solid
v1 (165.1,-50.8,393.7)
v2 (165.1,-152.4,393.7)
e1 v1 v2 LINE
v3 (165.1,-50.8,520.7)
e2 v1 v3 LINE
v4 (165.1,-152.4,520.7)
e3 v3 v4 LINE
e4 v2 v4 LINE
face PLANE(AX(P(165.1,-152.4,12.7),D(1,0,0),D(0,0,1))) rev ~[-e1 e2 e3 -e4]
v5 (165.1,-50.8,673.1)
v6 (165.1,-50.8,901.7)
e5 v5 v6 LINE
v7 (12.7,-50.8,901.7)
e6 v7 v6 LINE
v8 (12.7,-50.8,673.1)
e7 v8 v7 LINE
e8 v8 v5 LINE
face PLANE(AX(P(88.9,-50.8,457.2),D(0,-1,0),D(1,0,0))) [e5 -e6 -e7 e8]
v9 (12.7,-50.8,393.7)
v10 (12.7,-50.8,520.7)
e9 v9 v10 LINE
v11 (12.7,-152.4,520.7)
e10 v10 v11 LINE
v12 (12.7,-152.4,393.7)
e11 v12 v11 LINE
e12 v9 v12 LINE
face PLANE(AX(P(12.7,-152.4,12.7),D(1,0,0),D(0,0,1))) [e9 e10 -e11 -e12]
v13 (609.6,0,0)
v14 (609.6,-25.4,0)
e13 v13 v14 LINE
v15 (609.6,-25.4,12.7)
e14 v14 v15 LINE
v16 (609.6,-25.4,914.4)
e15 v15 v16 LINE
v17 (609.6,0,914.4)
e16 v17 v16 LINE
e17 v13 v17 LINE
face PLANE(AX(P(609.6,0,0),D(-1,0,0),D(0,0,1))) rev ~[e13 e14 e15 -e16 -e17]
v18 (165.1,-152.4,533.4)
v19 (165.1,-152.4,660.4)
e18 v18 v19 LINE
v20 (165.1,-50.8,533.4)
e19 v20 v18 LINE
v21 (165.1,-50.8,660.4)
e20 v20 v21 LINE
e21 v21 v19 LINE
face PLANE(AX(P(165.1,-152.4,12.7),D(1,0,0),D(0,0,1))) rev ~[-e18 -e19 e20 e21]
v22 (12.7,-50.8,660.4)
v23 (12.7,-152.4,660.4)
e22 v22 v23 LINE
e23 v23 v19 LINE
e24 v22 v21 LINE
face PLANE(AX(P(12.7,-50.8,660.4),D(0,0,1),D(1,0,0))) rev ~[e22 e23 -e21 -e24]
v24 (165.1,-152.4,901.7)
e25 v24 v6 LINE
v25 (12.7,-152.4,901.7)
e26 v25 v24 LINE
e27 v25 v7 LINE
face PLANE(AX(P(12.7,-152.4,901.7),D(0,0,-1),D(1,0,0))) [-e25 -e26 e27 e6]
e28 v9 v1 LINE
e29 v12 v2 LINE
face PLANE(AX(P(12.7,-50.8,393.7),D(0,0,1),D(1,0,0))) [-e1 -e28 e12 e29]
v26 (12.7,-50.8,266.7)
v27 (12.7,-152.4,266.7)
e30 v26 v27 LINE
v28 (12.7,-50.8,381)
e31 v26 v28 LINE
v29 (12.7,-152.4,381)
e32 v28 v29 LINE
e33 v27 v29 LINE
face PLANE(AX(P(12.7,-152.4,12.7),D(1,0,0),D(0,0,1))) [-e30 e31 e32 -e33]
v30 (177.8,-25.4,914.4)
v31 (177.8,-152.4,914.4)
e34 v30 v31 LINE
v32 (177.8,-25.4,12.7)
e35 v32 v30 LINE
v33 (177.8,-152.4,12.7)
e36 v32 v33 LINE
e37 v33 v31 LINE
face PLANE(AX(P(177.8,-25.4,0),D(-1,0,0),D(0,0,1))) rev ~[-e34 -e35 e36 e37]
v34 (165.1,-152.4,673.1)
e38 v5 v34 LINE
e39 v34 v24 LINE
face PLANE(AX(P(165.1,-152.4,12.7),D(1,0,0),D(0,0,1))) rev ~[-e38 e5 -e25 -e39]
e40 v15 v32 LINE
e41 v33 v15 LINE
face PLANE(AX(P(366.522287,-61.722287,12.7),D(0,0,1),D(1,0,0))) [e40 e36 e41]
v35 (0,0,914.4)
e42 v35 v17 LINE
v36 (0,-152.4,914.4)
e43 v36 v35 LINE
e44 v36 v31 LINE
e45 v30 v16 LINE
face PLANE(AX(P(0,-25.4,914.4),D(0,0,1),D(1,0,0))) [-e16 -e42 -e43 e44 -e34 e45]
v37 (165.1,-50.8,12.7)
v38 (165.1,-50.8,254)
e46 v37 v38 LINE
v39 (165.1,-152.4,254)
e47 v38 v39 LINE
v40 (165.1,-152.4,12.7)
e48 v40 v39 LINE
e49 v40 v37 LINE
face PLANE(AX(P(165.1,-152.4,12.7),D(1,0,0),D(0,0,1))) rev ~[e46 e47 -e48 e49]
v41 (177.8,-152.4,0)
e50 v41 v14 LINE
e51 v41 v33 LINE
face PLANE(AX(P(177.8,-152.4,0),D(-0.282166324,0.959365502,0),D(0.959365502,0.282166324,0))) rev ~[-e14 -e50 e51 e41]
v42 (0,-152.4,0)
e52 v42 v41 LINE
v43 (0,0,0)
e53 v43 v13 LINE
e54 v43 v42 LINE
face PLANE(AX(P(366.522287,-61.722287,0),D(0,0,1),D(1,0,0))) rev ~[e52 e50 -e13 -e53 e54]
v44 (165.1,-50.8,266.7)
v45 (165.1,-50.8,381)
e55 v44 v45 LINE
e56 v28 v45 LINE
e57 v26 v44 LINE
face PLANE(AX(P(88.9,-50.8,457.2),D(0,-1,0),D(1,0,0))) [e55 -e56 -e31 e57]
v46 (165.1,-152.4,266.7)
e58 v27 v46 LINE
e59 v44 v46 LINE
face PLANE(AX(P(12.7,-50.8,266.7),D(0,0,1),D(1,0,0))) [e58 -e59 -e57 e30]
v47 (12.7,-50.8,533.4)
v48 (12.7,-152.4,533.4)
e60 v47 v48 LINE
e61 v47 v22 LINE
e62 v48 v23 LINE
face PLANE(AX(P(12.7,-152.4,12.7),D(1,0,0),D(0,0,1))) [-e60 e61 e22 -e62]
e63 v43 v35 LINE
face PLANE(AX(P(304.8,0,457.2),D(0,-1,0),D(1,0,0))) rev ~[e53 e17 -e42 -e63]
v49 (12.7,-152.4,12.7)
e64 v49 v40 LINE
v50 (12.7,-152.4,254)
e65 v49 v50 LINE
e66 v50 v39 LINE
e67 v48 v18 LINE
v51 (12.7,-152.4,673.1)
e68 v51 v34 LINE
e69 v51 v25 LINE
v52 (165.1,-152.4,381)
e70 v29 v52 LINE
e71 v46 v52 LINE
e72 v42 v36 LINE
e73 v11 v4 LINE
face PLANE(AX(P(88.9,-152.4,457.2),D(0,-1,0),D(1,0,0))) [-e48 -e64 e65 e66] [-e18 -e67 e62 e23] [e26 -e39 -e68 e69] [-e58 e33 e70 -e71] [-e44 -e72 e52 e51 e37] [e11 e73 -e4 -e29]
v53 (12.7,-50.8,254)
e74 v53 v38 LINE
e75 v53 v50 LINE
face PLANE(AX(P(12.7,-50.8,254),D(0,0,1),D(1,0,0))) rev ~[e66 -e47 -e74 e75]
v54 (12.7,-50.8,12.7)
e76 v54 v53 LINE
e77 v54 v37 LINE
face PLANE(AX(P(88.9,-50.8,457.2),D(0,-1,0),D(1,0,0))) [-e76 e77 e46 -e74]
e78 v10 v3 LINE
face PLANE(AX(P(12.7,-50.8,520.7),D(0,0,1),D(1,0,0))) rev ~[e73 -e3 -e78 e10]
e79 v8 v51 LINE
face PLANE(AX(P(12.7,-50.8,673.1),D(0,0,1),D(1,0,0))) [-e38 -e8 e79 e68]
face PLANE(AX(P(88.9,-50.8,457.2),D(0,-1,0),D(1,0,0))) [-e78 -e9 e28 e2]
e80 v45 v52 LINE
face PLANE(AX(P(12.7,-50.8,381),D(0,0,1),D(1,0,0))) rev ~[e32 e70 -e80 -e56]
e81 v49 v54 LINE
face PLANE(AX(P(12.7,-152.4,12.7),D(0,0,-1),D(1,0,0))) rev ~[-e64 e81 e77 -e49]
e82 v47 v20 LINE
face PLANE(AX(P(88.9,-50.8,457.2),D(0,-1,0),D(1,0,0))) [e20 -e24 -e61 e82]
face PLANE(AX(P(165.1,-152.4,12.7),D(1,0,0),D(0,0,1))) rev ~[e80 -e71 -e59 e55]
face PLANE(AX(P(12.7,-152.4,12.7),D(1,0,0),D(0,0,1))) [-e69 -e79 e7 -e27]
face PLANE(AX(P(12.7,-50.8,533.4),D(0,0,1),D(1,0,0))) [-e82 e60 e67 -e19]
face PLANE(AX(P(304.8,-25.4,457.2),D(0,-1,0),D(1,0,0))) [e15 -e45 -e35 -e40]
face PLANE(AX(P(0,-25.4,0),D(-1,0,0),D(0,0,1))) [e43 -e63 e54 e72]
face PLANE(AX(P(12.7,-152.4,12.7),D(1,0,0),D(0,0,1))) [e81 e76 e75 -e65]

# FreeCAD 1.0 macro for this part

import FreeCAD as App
import Part
import Sketcher
Q = App.Units.Quantity


def add_polygon(sketch, points):
    """Adds a closed chain of lines whose ends are joined by coincident constraints."""
    first, n = sketch.GeometryCount, len(points)
    for a, b in zip(points, points[1:] + points[:1]):
        sketch.addGeometry(Part.LineSegment(App.Vector(*a, 0), App.Vector(*b, 0)), False)
    for i in range(n):
        sketch.addConstraint(Sketcher.Constraint("Coincident", first + i, 2, first + (i + 1) % n, 1))

doc = App.newDocument("Part")
body = doc.addObject("PartDesign::Body", "Body")

# Sketch on XZ plane
sketch1 = doc.addObject("Sketcher::SketchObject", "Sketch")
body.addObject(sketch1)
sketch1.AttachmentSupport = (doc.XZ_Plane, [""])
sketch1.MapMode = "FlatFace"
add_polygon(sketch1, [(0, 914), (0, 0), (610, 0), (610, 914)])  # lines 0-3
sketch1.addConstraint(Sketcher.Constraint("Vertical", 0))
sketch1.addConstraint(Sketcher.Constraint("Horizontal", 1))
sketch1.addConstraint(Sketcher.Constraint("Vertical", 2))
sketch1.addConstraint(Sketcher.Constraint("Horizontal", 3))
sketch1.addConstraint(Sketcher.Constraint("Coincident", 0, 2, -1, 1))
sketch1.addConstraint(Sketcher.Constraint("DistanceX", 1, 1, 1, 2, Q("24 in")))
sketch1.addConstraint(Sketcher.Constraint("DistanceY", 0, 2, 0, 1, Q("36 in")))
pad1 = doc.addObject("PartDesign::Pad", "Pad")
body.addObject(pad1)
pad1.Profile = sketch1
pad1.Length = Q("1 in")

# Sketch on XZ plane
sketch2 = doc.addObject("Sketcher::SketchObject", "Sketch001")
body.addObject(sketch2)
sketch2.AttachmentSupport = (doc.XZ_Plane, [""])
sketch2.MapMode = "FlatFace"
sketch2.AttachmentOffset = App.Placement(App.Vector(0, 0, 1 * 25.4), App.Rotation())
add_polygon(sketch2, [(0, 914), (0, 0), (178, 0), (178, 914)])  # lines 0-3
sketch2.addConstraint(Sketcher.Constraint("Vertical", 0))
sketch2.addConstraint(Sketcher.Constraint("Horizontal", 1))
sketch2.addConstraint(Sketcher.Constraint("Vertical", 2))
sketch2.addConstraint(Sketcher.Constraint("Horizontal", 3))
sketch2.addConstraint(Sketcher.Constraint("Coincident", 0, 2, -1, 1))
sketch2.addConstraint(Sketcher.Constraint("DistanceX", 1, 1, 1, 2, Q("7 in")))
sketch2.addConstraint(Sketcher.Constraint("DistanceY", 0, 2, 0, 1, Q("36 in")))
pad2 = doc.addObject("PartDesign::Pad", "Pad001")
body.addObject(pad2)
pad2.Profile = sketch2
pad2.Length = Q("5 in")

# Sketch on XZ plane
sketch3 = doc.addObject("Sketcher::SketchObject", "Sketch002")
body.addObject(sketch3)
sketch3.AttachmentSupport = (doc.XZ_Plane, [""])
sketch3.MapMode = "FlatFace"
sketch3.AttachmentOffset = App.Placement(App.Vector(0, 0, 6 * 25.4), App.Rotation())
add_polygon(sketch3, [(13, 902), (13, 13), (165, 13), (165, 902)])  # lines 0-3
sketch3.addConstraint(Sketcher.Constraint("Vertical", 0))
sketch3.addConstraint(Sketcher.Constraint("Horizontal", 1))
sketch3.addConstraint(Sketcher.Constraint("Vertical", 2))
sketch3.addConstraint(Sketcher.Constraint("Horizontal", 3))
sketch3.addConstraint(Sketcher.Constraint("DistanceX", 1, 1, 1, 2, Q("6 in")))
sketch3.addConstraint(Sketcher.Constraint("DistanceY", 0, 2, 0, 1, Q("35 in")))
sketch3.addConstraint(Sketcher.Constraint("DistanceX", -1, 1, 0, 2, Q("0.5 in")))
sketch3.addConstraint(Sketcher.Constraint("DistanceY", -1, 1, 0, 2, Q("0.5 in")))
pocket1 = doc.addObject("PartDesign::Pocket", "Pocket")
body.addObject(pocket1)
pocket1.Profile = sketch3
pocket1.Length = Q("4 in")

# Sketch on XZ plane
sketch4 = doc.addObject("Sketcher::SketchObject", "Sketch003")
body.addObject(sketch4)
sketch4.AttachmentSupport = (doc.XZ_Plane, [""])
sketch4.MapMode = "FlatFace"
sketch4.AttachmentOffset = App.Placement(App.Vector(0, 0, 2 * 25.4), App.Rotation())
add_polygon(sketch4, [(13, 673), (13, 660), (165, 660), (165, 673)])  # lines 0-3
add_polygon(sketch4, [(13, 533), (13, 521), (165, 521), (165, 533)])  # lines 4-7
add_polygon(sketch4, [(13, 394), (13, 381), (165, 381), (165, 394)])  # lines 8-11
add_polygon(sketch4, [(13, 267), (13, 254), (165, 254), (165, 267)])  # lines 12-15
sketch4.addConstraint(Sketcher.Constraint("Vertical", 0))
sketch4.addConstraint(Sketcher.Constraint("Horizontal", 1))
sketch4.addConstraint(Sketcher.Constraint("Vertical", 2))
sketch4.addConstraint(Sketcher.Constraint("Horizontal", 3))
sketch4.addConstraint(Sketcher.Constraint("Vertical", 4))
sketch4.addConstraint(Sketcher.Constraint("Horizontal", 5))
sketch4.addConstraint(Sketcher.Constraint("Vertical", 6))
sketch4.addConstraint(Sketcher.Constraint("Horizontal", 7))
sketch4.addConstraint(Sketcher.Constraint("Vertical", 8))
sketch4.addConstraint(Sketcher.Constraint("Horizontal", 9))
sketch4.addConstraint(Sketcher.Constraint("Vertical", 10))
sketch4.addConstraint(Sketcher.Constraint("Horizontal", 11))
sketch4.addConstraint(Sketcher.Constraint("Vertical", 12))
sketch4.addConstraint(Sketcher.Constraint("Horizontal", 13))
sketch4.addConstraint(Sketcher.Constraint("Vertical", 14))
sketch4.addConstraint(Sketcher.Constraint("Horizontal", 15))
sketch4.addConstraint(Sketcher.Constraint("Vertical", 3, 2, 4, 2))
sketch4.addConstraint(Sketcher.Constraint("Vertical", 2, 2, 5, 2))
sketch4.addConstraint(Sketcher.Constraint("Vertical", 7, 2, 8, 2))
sketch4.addConstraint(Sketcher.Constraint("Vertical", 6, 2, 9, 2))
sketch4.addConstraint(Sketcher.Constraint("Vertical", 11, 2, 12, 2))
sketch4.addConstraint(Sketcher.Constraint("Vertical", 10, 2, 13, 2))
sketch4.addConstraint(Sketcher.Constraint("Equal", 2, 4))
sketch4.addConstraint(Sketcher.Constraint("Equal", 6, 8))
sketch4.addConstraint(Sketcher.Constraint("Equal", 10, 12))
sketch4.addConstraint(Sketcher.Constraint("DistanceX", 1, 1, 1, 2, Q("6 in")))
sketch4.addConstraint(Sketcher.Constraint("DistanceY", 0, 2, 0, 1, Q("0.5 in")))
sketch4.addConstraint(Sketcher.Constraint("DistanceY", -1, 1, 0, 2, Q("26 in")))
sketch4.addConstraint(Sketcher.Constraint("DistanceY", -1, 1, 6, 2, Q("21 in")))
sketch4.addConstraint(Sketcher.Constraint("DistanceY", -1, 1, 8, 2, Q("15 in")))
sketch4.addConstraint(Sketcher.Constraint("DistanceY", -1, 1, 12, 2, Q("10 in")))
sketch4.addConstraint(Sketcher.Constraint("DistanceX", -1, 1, 0, 2, Q("0.5 in")))
pad3 = doc.addObject("PartDesign::Pad", "Pad002")
body.addObject(pad3)
pad3.Profile = sketch4
pad3.Length = Q("4 in")

# Sketch on XY plane
sketch5 = doc.addObject("Sketcher::SketchObject", "Sketch004")
body.addObject(sketch5)
sketch5.AttachmentSupport = (doc.XY_Plane, [""])
sketch5.MapMode = "FlatFace"
add_polygon(sketch5, [(178, -25), (178, -152), (610, -25)])  # lines 0-2
sketch5.addConstraint(Sketcher.Constraint("Vertical", 0))
sketch5.addConstraint(Sketcher.Constraint("Horizontal", 2))
sketch5.addConstraint(Sketcher.Constraint("DistanceX", 2, 2, 2, 1, Q("17 in")))
sketch5.addConstraint(Sketcher.Constraint("DistanceY", 0, 2, 0, 1, Q("5 in")))
sketch5.addConstraint(Sketcher.Constraint("DistanceX", -1, 1, 0, 2, Q("7 in")))
sketch5.addConstraint(Sketcher.Constraint("DistanceY", 0, 2, -1, 1, Q("6 in")))
pad4 = doc.addObject("PartDesign::Pad", "Pad003")
body.addObject(pad4)
pad4.Profile = sketch5
pad4.Length = Q("0.5 in")

doc.recompute()
